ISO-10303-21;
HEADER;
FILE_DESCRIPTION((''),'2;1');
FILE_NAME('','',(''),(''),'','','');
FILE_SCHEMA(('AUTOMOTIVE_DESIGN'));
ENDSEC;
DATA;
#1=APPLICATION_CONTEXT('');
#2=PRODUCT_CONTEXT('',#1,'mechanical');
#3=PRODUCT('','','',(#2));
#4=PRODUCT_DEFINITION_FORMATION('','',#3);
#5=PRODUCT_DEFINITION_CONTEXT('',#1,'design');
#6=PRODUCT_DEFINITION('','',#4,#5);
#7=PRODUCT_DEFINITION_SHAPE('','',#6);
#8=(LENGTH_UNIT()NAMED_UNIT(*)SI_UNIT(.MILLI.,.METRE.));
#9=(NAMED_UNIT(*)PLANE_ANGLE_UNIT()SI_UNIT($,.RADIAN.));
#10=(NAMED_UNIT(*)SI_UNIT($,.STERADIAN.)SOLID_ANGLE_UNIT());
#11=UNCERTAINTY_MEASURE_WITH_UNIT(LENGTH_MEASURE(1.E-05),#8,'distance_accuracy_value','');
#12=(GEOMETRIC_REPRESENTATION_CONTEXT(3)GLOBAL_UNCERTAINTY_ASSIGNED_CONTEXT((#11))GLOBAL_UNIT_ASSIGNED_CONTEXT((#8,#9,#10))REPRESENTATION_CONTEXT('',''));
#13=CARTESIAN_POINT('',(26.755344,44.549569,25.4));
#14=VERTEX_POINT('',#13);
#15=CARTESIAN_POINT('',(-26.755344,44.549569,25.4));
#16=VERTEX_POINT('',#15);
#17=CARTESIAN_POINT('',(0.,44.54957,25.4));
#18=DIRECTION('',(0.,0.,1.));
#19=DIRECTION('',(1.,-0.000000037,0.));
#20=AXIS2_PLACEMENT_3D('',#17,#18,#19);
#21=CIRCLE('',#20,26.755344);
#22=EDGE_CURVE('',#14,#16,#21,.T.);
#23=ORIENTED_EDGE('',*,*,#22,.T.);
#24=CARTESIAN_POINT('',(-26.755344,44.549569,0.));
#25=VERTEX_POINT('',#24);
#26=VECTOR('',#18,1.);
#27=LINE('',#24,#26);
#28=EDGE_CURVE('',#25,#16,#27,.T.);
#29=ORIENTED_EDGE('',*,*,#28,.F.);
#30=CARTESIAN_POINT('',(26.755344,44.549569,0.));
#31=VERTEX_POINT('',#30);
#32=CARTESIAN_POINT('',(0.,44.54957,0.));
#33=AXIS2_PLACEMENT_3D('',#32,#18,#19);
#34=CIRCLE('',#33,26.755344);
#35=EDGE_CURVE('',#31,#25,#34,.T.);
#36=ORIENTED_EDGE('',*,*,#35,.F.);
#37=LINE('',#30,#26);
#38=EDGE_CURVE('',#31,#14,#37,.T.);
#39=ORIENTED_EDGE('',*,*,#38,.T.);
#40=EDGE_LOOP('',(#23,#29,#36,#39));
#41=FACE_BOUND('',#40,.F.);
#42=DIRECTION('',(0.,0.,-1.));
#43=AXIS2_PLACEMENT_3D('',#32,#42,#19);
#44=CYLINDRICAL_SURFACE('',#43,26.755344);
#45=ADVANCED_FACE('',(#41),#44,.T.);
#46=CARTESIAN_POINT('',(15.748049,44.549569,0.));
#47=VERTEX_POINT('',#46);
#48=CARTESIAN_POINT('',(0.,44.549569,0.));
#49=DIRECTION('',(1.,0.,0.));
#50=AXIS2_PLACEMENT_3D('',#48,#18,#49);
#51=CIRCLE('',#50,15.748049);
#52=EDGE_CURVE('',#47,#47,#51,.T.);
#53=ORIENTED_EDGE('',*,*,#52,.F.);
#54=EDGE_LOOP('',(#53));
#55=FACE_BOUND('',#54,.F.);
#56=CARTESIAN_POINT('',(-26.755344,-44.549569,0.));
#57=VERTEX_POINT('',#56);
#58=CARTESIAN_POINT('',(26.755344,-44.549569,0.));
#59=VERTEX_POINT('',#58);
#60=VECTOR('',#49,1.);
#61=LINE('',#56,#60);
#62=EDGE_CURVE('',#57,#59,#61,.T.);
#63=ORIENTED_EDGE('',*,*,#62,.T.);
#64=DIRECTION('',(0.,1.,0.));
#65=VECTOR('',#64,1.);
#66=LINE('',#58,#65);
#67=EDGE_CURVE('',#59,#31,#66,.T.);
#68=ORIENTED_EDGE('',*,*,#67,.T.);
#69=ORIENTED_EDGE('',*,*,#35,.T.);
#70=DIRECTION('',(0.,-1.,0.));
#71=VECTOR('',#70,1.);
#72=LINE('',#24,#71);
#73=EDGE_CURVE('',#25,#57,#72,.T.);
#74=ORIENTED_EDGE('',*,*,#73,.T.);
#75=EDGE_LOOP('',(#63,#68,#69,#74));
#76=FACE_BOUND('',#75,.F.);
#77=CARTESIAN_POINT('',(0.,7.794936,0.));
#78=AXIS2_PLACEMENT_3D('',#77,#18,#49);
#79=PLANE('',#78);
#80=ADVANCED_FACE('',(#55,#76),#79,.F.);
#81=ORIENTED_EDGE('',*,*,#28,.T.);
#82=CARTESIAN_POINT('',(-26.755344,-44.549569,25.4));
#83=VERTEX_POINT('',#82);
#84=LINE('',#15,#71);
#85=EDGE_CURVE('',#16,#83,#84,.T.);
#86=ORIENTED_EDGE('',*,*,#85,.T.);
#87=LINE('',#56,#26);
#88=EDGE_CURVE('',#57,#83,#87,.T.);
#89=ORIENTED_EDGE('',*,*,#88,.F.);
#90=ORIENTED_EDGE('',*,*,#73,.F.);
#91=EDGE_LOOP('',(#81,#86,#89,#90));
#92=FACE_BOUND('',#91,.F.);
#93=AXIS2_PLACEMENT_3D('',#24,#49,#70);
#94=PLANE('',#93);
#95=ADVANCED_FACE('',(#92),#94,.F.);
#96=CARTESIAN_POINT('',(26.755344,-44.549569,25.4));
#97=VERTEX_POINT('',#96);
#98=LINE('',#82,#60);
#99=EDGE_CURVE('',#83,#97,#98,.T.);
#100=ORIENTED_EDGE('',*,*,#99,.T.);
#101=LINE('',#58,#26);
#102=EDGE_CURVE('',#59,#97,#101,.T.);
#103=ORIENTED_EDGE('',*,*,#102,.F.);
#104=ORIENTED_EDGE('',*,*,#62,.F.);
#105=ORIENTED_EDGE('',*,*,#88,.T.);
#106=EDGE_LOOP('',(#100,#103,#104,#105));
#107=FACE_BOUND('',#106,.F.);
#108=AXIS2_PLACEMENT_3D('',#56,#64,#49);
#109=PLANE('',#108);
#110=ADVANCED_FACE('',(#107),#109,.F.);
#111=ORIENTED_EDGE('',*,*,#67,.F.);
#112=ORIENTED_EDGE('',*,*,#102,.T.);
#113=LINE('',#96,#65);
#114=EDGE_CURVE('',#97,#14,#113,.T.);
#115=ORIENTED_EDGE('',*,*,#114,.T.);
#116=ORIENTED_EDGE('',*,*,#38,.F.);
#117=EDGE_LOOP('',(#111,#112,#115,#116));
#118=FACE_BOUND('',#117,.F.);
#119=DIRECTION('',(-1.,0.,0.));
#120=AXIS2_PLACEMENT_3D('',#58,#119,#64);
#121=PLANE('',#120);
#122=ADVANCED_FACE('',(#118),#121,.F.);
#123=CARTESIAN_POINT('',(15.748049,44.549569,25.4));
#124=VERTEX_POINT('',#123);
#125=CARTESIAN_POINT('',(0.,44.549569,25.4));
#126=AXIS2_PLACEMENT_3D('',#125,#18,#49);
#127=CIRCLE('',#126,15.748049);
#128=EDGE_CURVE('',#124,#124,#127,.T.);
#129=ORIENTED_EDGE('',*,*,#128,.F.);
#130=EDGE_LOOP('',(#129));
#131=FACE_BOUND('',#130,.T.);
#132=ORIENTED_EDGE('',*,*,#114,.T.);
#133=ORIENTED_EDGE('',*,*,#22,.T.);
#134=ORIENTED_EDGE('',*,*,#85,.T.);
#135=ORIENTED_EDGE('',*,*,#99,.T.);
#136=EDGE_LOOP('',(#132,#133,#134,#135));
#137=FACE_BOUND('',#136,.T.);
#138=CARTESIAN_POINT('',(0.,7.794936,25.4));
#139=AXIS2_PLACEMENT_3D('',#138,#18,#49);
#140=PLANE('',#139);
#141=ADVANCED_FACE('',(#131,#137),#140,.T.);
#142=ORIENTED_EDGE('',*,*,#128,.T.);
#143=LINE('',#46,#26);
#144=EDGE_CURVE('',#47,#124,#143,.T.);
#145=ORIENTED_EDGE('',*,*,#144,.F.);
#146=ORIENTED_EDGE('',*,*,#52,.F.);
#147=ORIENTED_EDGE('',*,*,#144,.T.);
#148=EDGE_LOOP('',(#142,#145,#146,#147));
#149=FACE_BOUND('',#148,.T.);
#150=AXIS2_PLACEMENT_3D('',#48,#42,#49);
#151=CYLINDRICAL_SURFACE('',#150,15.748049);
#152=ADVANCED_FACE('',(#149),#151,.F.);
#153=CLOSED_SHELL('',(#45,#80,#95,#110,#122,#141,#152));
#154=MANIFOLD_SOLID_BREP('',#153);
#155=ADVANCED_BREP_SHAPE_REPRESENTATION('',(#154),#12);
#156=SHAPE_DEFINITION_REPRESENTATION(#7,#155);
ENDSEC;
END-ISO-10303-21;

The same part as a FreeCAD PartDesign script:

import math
import FreeCAD as App
import Part
import Sketcher
Q = App.Units.Quantity

doc = App.newDocument("Part")
body = doc.addObject("PartDesign::Body", "Body")

# Sketch on XY plane
sketch1 = body.newObject("Sketcher::SketchObject", "Sketch")
sketch1.AttachmentSupport = (doc.getObject("XY_Plane"), [""])
sketch1.MapMode = "FlatFace"
sketch1.addGeometry([
    Part.LineSegment(App.Vector(-27, 45, 0), App.Vector(-27, -45, 0)),  # 0
    Part.LineSegment(App.Vector(-27, -45, 0), App.Vector(27, -45, 0)),  # 1
    Part.LineSegment(App.Vector(27, -45, 0), App.Vector(27, 45, 0)),  # 2
    Part.ArcOfCircle(Part.Circle(App.Vector(0, 45, 0), App.Vector(0, 0, 1), 27), math.radians(0), math.radians(180)),  # 3
    Part.Circle(App.Vector(0, 45, 0), App.Vector(0, 0, 1), 16),  # 4
], False)
sketch1.addConstraint([
    Sketcher.Constraint("Coincident", 0, 2, 1, 1),
    Sketcher.Constraint("Coincident", 1, 2, 2, 1),
    Sketcher.Constraint("Tangent", 2, 2, 3, 1),
    Sketcher.Constraint("Tangent", 3, 2, 0, 1),
    Sketcher.Constraint("Vertical", 0),
    Sketcher.Constraint("Horizontal", 1),
    Sketcher.Constraint("Vertical", 2),
    Sketcher.Constraint("Coincident", 4, 3, 3, 3),
    Sketcher.Constraint("Symmetric", 0, 2, 2, 2, -1, 1),
    Sketcher.Constraint("Diameter", 4, 31.496098),
    Sketcher.Constraint("Radius", 3, 26.755344),
    Sketcher.Constraint("DistanceY", 0, 2, 0, 1, 89.099138),
])
pad1 = body.newObject("PartDesign::Pad", "Pad")
pad1.Profile = sketch1
pad1.Length = Q("1 in")

doc.recompute()
